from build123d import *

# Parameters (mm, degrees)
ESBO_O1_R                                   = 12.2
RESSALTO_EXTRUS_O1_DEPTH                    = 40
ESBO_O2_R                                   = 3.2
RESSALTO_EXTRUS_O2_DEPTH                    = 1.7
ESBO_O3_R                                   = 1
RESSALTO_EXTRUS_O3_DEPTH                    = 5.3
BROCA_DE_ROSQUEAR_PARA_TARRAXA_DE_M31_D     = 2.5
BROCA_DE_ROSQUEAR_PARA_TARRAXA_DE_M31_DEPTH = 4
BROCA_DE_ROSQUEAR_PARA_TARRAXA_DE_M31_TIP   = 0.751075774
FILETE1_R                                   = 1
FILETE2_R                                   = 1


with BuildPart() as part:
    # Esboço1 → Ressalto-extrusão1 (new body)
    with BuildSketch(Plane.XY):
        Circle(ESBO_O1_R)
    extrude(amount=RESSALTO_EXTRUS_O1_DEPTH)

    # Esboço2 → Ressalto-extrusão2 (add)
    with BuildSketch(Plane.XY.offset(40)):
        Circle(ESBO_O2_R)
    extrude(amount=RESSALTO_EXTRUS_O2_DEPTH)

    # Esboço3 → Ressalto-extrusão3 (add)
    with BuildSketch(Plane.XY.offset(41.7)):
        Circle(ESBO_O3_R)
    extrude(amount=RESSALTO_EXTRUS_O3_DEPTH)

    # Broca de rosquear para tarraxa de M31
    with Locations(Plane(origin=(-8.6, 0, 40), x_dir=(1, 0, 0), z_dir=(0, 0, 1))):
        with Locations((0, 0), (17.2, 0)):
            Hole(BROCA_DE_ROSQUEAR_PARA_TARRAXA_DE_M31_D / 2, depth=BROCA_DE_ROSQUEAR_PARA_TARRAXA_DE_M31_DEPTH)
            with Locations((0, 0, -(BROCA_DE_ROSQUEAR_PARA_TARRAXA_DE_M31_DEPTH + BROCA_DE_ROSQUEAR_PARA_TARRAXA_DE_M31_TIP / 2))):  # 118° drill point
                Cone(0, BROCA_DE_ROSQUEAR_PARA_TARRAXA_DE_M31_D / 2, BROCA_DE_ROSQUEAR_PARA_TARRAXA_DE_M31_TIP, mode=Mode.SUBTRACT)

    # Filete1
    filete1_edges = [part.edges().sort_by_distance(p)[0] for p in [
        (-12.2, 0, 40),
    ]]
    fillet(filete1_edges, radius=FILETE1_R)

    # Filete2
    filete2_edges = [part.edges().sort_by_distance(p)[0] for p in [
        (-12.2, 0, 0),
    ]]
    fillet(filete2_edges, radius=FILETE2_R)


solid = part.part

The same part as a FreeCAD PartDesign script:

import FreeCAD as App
import Part
import Sketcher

V = App.Vector
Q = App.Units.Quantity


def edges_at(feature, points):
    """Names of the edges that pass closest to the given points."""
    edges = feature.Shape.Edges
    near = lambda p: min(range(len(edges)), key=lambda i: edges[i].distToShape(Part.Vertex(*p))[0])
    return sorted({f"Edge{near(p) + 1}" for p in points})

doc = App.newDocument("Part")
body = doc.addObject("PartDesign::Body", "Body")

sketch1 = body.newObject("Sketcher::SketchObject", "Sketch")
sketch1.AttachmentSupport = (doc.getObject("XY_Plane"), [""])
sketch1.MapMode = "FlatFace"
sketch1.addGeometry(Part.Circle(V(0, 0, 0), V(0, 0, 1), 12), False)
sketch1.addConstraint([
    Sketcher.Constraint("Coincident", 0, 3, -1, 1),
    Sketcher.Constraint("Diameter", 0, Q("24.4 mm")),
])
pad1 = body.newObject("PartDesign::Pad", "Pad")
pad1.Profile = sketch1
pad1.Length = 40

sketch2 = body.newObject("Sketcher::SketchObject", "Sketch001")
sketch2.AttachmentSupport = (doc.getObject("XY_Plane"), [""])
sketch2.MapMode = "FlatFace"
sketch2.AttachmentOffset = App.Placement(V(0, 0, 40), App.Rotation())
sketch2.addGeometry(Part.Circle(V(0, 0, 0), V(0, 0, 1), 3.2), False)
sketch2.addConstraint([
    Sketcher.Constraint("Coincident", 0, 3, -1, 1),
    Sketcher.Constraint("Diameter", 0, Q("6.4 mm")),
])
pad2 = body.newObject("PartDesign::Pad", "Pad001")
pad2.Profile = sketch2
pad2.Length = 1.7

sketch3 = body.newObject("Sketcher::SketchObject", "Sketch002")
sketch3.AttachmentSupport = (doc.getObject("XY_Plane"), [""])
sketch3.MapMode = "FlatFace"
sketch3.AttachmentOffset = App.Placement(V(0, 0, 41.7), App.Rotation())
sketch3.addGeometry(Part.Circle(V(0, 0, 0), V(0, 0, 1), 1), False)
sketch3.addConstraint([
    Sketcher.Constraint("Coincident", 0, 3, -1, 1),
    Sketcher.Constraint("Diameter", 0, Q("2 mm")),
])
pad3 = body.newObject("PartDesign::Pad", "Pad002")
pad3.Profile = sketch3
pad3.Length = 5.3

sketch4 = body.newObject("Sketcher::SketchObject", "Sketch003")
sketch4.AttachmentSupport = (doc.getObject("XY_Plane"), [""])
sketch4.MapMode = "FlatFace"
sketch4.AttachmentOffset = App.Placement(V(0, 0, 40), App.Rotation())
sketch4.addGeometry([
    Part.Circle(V(-8.6, 0, 0), V(0, 0, 1), 1.2),
    Part.Circle(V(8.6, 0, 0), V(0, 0, 1), 1.2),
], False)
sketch4.addConstraint([
    Sketcher.Constraint("Equal", 0, 1),
    Sketcher.Constraint("Symmetric", 0, 3, 1, 3, -1, 1),
    Sketcher.Constraint("PointOnObject", 0, 3, -1),
    Sketcher.Constraint("Diameter", 0, Q("2.5 mm")),
    Sketcher.Constraint("DistanceX", 0, 3, -1, 1, Q("8.6 mm")),
])
doc.recompute()
hole = body.newObject("PartDesign::Hole", "Hole")
hole.Profile = sketch4
hole.ThreadType = "None"
hole.Diameter = 2.5
hole.DepthType = "Dimension"
hole.Depth = 4
hole.DrillPoint = "Angled"
hole.DrillPointAngle = 118
doc.recompute()

fillet = body.newObject("PartDesign::Fillet", "Fillet")
fillet.Base = (hole, edges_at(hole, [(-12.2, 0, 40)]))
fillet.Radius = 1
doc.recompute()

fillet2 = body.newObject("PartDesign::Fillet", "Fillet001")
fillet2.Base = (fillet, edges_at(fillet, [(-12.2, 0, 0)]))
fillet2.Radius = 1

doc.recompute()
